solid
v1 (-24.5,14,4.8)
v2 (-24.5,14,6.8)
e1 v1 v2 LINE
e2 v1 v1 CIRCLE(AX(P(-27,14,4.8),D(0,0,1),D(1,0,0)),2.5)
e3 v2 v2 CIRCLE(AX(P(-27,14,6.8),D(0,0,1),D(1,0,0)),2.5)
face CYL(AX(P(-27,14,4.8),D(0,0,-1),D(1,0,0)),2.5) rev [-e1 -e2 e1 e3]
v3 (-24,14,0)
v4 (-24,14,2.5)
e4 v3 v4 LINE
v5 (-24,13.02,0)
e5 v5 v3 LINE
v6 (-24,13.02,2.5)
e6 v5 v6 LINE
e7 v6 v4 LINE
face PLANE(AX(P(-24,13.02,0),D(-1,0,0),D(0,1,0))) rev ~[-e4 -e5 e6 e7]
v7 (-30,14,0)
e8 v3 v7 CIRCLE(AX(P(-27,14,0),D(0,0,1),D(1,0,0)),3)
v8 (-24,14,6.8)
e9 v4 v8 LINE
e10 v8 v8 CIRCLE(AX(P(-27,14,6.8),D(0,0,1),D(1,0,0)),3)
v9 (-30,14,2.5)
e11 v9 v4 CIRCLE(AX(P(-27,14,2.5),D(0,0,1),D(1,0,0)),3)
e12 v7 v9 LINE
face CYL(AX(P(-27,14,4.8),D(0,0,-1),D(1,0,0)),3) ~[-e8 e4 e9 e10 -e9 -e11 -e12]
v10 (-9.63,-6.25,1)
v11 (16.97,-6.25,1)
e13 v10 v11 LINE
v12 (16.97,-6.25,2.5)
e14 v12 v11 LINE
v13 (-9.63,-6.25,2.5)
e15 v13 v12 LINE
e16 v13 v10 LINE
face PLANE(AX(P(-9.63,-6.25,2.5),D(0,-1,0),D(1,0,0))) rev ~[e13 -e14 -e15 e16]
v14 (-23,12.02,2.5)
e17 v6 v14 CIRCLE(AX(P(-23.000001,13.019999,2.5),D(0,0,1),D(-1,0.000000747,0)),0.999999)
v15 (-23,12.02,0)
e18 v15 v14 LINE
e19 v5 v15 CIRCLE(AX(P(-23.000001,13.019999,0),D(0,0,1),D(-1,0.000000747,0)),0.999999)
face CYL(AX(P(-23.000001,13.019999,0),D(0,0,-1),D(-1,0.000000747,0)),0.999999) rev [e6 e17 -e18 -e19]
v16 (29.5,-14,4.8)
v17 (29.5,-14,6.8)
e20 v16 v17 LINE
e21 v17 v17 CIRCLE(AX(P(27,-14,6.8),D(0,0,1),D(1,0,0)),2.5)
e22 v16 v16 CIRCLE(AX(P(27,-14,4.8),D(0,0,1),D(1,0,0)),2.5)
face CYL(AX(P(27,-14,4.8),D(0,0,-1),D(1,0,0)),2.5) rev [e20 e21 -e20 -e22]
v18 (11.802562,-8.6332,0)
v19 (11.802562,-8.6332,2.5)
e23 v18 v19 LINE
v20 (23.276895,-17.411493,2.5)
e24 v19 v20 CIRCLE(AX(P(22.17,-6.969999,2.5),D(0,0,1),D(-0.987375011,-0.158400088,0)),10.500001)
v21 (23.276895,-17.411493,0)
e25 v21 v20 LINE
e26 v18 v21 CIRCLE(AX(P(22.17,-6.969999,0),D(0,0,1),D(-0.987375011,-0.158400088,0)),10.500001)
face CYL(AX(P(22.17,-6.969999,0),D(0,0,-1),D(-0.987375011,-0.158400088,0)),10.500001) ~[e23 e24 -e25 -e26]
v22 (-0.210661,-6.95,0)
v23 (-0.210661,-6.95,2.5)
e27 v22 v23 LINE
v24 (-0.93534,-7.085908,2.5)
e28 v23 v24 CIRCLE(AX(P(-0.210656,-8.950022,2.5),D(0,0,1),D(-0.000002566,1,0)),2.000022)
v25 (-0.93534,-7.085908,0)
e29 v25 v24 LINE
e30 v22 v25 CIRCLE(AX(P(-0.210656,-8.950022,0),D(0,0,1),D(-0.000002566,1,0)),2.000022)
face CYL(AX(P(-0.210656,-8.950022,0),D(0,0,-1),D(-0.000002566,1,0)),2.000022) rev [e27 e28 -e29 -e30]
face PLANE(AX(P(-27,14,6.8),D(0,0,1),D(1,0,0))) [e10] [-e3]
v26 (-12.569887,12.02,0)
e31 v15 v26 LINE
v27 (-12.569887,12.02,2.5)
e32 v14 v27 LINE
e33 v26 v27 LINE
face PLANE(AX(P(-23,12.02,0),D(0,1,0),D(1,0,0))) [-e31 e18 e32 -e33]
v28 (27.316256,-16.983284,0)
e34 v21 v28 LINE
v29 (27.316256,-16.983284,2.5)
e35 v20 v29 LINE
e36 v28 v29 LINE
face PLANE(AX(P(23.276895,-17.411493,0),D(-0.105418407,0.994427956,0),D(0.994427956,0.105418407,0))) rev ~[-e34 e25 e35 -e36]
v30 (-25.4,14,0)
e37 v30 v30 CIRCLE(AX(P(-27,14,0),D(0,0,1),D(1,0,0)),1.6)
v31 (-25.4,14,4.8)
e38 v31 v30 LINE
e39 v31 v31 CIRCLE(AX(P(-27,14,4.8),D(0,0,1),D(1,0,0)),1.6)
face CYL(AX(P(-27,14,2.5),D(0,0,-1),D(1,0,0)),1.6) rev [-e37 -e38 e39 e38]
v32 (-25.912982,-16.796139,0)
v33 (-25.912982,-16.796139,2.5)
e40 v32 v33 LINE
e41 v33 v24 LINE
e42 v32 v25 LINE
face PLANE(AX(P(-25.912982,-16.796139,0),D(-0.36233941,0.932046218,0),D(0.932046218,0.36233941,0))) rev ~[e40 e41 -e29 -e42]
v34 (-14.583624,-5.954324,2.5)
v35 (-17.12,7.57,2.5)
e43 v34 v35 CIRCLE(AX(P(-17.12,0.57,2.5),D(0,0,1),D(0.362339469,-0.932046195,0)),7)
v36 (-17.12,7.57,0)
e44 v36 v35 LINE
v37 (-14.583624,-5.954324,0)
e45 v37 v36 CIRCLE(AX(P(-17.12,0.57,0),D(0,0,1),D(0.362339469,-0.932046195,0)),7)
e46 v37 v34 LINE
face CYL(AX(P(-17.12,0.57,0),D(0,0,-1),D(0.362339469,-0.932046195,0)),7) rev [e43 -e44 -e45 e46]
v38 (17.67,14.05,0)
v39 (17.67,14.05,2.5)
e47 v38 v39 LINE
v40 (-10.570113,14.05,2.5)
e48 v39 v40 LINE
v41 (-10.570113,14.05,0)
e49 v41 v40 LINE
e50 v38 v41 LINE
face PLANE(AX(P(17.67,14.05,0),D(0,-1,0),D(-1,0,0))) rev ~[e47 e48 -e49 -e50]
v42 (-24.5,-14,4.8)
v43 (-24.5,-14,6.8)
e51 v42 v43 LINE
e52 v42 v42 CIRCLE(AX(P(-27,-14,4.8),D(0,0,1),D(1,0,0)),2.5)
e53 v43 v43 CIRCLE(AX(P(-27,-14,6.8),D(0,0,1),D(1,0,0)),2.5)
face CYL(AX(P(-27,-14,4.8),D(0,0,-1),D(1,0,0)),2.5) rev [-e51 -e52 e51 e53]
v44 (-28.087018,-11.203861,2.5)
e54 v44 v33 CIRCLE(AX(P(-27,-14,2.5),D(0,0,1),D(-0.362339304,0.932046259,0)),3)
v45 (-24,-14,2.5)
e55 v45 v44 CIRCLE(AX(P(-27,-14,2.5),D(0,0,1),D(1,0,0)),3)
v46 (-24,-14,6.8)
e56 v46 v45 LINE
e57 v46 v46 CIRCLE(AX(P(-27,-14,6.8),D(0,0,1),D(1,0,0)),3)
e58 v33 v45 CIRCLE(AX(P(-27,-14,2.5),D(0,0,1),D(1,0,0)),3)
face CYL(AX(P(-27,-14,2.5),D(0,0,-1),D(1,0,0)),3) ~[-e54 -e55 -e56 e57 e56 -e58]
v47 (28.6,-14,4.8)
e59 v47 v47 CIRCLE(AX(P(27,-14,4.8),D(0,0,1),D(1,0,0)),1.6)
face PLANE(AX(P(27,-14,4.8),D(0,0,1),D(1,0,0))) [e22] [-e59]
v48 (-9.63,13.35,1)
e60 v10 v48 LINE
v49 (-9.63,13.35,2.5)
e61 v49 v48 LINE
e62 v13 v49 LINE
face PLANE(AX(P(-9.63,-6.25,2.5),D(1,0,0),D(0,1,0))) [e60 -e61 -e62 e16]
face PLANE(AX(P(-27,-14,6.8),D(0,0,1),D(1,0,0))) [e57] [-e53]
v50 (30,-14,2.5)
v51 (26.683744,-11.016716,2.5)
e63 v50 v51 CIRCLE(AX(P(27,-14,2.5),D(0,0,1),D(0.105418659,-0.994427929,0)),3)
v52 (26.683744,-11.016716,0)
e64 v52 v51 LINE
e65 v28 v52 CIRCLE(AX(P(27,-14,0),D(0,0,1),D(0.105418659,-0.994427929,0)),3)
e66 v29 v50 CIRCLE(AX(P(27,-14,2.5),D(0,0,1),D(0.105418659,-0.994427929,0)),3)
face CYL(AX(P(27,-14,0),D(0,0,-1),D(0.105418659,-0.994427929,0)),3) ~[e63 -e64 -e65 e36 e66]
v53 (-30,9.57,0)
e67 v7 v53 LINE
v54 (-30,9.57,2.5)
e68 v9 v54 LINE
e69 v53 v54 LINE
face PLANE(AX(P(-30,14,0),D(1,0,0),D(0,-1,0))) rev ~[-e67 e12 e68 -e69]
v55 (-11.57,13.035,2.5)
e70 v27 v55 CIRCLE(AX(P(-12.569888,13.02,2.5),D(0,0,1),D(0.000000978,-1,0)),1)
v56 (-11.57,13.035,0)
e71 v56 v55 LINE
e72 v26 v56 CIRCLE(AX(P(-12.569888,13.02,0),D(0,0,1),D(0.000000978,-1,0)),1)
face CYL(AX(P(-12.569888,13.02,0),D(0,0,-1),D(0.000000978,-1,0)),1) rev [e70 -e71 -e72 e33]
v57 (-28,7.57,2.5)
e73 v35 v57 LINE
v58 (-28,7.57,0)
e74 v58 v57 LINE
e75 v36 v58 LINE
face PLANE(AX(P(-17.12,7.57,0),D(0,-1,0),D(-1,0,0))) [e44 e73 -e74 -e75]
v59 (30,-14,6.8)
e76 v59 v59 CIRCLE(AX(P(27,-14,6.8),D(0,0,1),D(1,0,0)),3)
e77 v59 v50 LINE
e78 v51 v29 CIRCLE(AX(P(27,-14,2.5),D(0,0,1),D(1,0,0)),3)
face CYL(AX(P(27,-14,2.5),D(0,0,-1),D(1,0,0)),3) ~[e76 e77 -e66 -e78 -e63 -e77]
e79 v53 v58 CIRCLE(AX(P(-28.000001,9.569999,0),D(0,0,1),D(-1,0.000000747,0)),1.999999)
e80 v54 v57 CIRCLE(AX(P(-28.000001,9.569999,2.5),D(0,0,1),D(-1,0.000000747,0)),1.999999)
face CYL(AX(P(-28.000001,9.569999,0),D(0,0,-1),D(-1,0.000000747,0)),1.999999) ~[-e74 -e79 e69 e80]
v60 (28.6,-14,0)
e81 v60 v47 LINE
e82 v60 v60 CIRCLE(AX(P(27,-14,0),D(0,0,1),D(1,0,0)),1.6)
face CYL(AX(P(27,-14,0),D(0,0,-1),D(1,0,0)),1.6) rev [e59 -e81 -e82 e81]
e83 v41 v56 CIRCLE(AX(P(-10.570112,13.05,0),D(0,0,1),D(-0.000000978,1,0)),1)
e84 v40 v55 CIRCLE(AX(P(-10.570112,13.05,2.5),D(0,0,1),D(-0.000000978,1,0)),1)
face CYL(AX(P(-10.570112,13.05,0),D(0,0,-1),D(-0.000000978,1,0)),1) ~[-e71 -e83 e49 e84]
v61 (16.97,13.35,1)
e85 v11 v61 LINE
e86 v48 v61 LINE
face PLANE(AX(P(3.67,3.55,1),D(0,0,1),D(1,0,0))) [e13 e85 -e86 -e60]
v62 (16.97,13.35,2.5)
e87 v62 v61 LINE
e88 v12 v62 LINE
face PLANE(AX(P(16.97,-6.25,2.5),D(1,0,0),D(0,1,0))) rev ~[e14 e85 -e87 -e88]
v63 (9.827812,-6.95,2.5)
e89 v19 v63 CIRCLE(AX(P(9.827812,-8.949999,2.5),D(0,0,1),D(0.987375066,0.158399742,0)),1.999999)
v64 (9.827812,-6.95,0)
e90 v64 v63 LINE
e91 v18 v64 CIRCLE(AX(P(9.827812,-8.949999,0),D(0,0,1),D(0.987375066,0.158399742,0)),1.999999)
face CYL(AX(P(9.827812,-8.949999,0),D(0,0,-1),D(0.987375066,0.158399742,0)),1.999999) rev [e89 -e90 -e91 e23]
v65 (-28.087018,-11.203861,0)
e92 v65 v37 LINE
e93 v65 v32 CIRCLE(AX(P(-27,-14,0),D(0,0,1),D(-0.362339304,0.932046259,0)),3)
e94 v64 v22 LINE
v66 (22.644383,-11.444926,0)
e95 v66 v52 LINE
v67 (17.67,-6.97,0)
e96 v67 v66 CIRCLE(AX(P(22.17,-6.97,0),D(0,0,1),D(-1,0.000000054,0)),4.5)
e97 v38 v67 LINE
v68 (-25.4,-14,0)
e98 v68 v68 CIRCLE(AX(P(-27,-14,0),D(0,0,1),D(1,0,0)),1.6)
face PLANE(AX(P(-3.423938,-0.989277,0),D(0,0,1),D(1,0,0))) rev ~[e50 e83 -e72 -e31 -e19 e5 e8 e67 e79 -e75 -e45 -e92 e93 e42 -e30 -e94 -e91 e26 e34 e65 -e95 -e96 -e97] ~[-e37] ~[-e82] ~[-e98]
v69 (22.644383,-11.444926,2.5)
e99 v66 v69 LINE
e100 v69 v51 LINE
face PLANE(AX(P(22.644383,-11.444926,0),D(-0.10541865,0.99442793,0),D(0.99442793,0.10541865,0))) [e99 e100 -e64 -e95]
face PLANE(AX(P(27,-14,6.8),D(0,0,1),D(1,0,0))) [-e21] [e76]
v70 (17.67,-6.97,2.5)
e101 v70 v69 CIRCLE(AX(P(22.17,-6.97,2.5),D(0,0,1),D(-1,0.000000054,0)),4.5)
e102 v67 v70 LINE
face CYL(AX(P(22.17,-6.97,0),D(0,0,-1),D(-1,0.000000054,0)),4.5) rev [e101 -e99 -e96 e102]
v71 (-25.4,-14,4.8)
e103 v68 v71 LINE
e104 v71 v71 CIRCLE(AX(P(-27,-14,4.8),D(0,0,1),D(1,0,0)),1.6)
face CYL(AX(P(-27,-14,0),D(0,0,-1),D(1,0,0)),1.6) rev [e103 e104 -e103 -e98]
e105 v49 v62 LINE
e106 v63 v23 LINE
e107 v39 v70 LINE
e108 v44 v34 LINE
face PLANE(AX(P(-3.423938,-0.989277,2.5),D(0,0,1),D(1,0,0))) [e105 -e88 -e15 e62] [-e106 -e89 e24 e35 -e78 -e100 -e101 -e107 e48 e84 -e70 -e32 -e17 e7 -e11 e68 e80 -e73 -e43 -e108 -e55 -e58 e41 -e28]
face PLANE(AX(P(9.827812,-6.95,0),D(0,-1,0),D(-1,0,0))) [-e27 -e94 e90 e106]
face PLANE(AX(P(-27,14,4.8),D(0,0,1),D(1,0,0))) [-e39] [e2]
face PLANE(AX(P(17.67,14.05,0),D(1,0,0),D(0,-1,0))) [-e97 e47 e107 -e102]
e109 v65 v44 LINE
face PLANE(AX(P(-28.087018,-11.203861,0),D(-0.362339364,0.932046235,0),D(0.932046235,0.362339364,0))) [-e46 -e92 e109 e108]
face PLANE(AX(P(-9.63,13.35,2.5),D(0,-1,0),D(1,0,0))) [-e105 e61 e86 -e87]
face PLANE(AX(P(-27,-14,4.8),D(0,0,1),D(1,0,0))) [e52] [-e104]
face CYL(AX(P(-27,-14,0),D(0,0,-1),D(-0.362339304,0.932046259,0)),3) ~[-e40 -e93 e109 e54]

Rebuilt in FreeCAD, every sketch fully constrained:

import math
import FreeCAD as App
import Part
import Sketcher

V = App.Vector


def add_polygon(sketch, points):
    """Adds a closed chain of lines whose ends are joined by coincident constraints."""
    first, n = sketch.GeometryCount, len(points)
    for a, b in zip(points, points[1:] + points[:1]):
        sketch.addGeometry(Part.LineSegment(App.Vector(*a, 0), App.Vector(*b, 0)), False)
    for i in range(n):
        sketch.addConstraint(Sketcher.Constraint("Coincident", first + i, 2, first + (i + 1) % n, 1))

doc = App.newDocument("Part")
body = doc.addObject("PartDesign::Body", "Body")

sketch1 = body.newObject("Sketcher::SketchObject", "Sketch")
sketch1.AttachmentSupport = (doc.getObject("XY_Plane"), [""])
sketch1.MapMode = "FlatFace"
sketch1.addGeometry(Part.ArcOfCircle(Part.Circle(V(-27, -14, 0), V(0, 0, 1), 3), math.radians(111), math.radians(291)), False)
sketch1.addGeometry(Part.LineSegment(V(-25.9, -16.8, 0), V(-0.9, -7.1, 0)), False)
sketch1.addGeometry(Part.ArcOfCircle(Part.Circle(V(-0.2, -9, 0), V(0, 0, 1), 2), math.radians(90), math.radians(111)), False)
sketch1.addGeometry(Part.LineSegment(V(-0.2, -7, 0), V(9.8, -7, 0)), False)
sketch1.addGeometry(Part.ArcOfCircle(Part.Circle(V(9.8, -8.9, 0), V(0, 0, 1), 2), math.radians(9), math.radians(90)), False)
sketch1.addGeometry(Part.ArcOfCircle(Part.Circle(V(22.2, -7, 0), V(0, 0, 1), 10.5), math.radians(-171), math.radians(-84)), False)
sketch1.addGeometry(Part.LineSegment(V(23.3, -17.4, 0), V(27.3, -17, 0)), False)
sketch1.addGeometry(Part.ArcOfCircle(Part.Circle(V(27, -14, 0), V(0, 0, 1), 3), math.radians(-84), math.radians(96)), False)
sketch1.addGeometry(Part.LineSegment(V(26.7, -11, 0), V(22.6, -11.4, 0)), False)
sketch1.addGeometry(Part.ArcOfCircle(Part.Circle(V(22.2, -7, 0), V(0, 0, 1), 4.5), math.radians(180), math.radians(276)), False)
sketch1.addGeometry(Part.LineSegment(V(17.7, -7, 0), V(17.7, 14.1, 0)), False)
sketch1.addGeometry(Part.LineSegment(V(17.7, 14.1, 0), V(-10.6, 14.1, 0)), False)
sketch1.addGeometry(Part.ArcOfCircle(Part.Circle(V(-10.6, 13, 0), V(0, 0, 1), 1), math.radians(90), math.radians(181)), False)
sketch1.addGeometry(Part.ArcOfCircle(Part.Circle(V(-12.6, 13, 0), V(0, 0, 1), 1), math.radians(-90), math.radians(1)), False)
sketch1.addGeometry(Part.LineSegment(V(-12.6, 12, 0), V(-23, 12, 0)), False)
sketch1.addGeometry(Part.ArcOfCircle(Part.Circle(V(-23, 13, 0), V(0, 0, 1), 1), math.radians(180), math.radians(270)), False)
sketch1.addGeometry(Part.LineSegment(V(-24, 13, 0), V(-24, 14, 0)), False)
sketch1.addGeometry(Part.ArcOfCircle(Part.Circle(V(-27, 14, 0), V(0, 0, 1), 3), math.radians(0), math.radians(180)), False)
sketch1.addGeometry(Part.LineSegment(V(-30, 14, 0), V(-30, 9.6, 0)), False)
sketch1.addGeometry(Part.ArcOfCircle(Part.Circle(V(-28, 9.6, 0), V(0, 0, 1), 2), math.radians(180), math.radians(270)), False)
sketch1.addGeometry(Part.LineSegment(V(-28, 7.6, 0), V(-17.1, 7.6, 0)), False)
sketch1.addGeometry(Part.ArcOfCircle(Part.Circle(V(-17.1, 0.6, 0), V(0, 0, 1), 7), math.radians(-69), math.radians(90)), False)
sketch1.addGeometry(Part.LineSegment(V(-14.6, -6, 0), V(-28.1, -11.2, 0)), False)
sketch1.addGeometry(Part.Circle(V(-27, -14, 0), V(0, 0, 1), 1.6), False)
sketch1.addGeometry(Part.Circle(V(27, -14, 0), V(0, 0, 1), 1.6), False)
sketch1.addGeometry(Part.Circle(V(-27, 14, 0), V(0, 0, 1), 1.6), False)
sketch1.addConstraint(Sketcher.Constraint("Tangent", 0, 2, 1, 1))
sketch1.addConstraint(Sketcher.Constraint("Tangent", 1, 2, 2, 2))
sketch1.addConstraint(Sketcher.Constraint("Coincident", 2, 1, 3, 1))
sketch1.addConstraint(Sketcher.Constraint("Tangent", 3, 2, 4, 2))
sketch1.addConstraint(Sketcher.Constraint("Tangent", 4, 1, 5, 1))
sketch1.addConstraint(Sketcher.Constraint("Tangent", 5, 2, 6, 1))
sketch1.addConstraint(Sketcher.Constraint("Tangent", 6, 2, 7, 1))
sketch1.addConstraint(Sketcher.Constraint("Tangent", 7, 2, 8, 1))
sketch1.addConstraint(Sketcher.Constraint("Tangent", 8, 2, 9, 2))
sketch1.addConstraint(Sketcher.Constraint("Tangent", 9, 1, 10, 1))
sketch1.addConstraint(Sketcher.Constraint("Coincident", 10, 2, 11, 1))
sketch1.addConstraint(Sketcher.Constraint("Tangent", 11, 2, 12, 1))
sketch1.addConstraint(Sketcher.Constraint("Tangent", 12, 2, 13, 2))
sketch1.addConstraint(Sketcher.Constraint("Tangent", 13, 1, 14, 1))
sketch1.addConstraint(Sketcher.Constraint("Tangent", 14, 2, 15, 2))
sketch1.addConstraint(Sketcher.Constraint("Tangent", 15, 1, 16, 1))
sketch1.addConstraint(Sketcher.Constraint("Tangent", 16, 2, 17, 1))
sketch1.addConstraint(Sketcher.Constraint("Tangent", 17, 2, 18, 1))
sketch1.addConstraint(Sketcher.Constraint("Tangent", 18, 2, 19, 1))
sketch1.addConstraint(Sketcher.Constraint("Tangent", 19, 2, 20, 1))
sketch1.addConstraint(Sketcher.Constraint("Tangent", 20, 2, 21, 2))
sketch1.addConstraint(Sketcher.Constraint("Tangent", 21, 1, 22, 1))
sketch1.addConstraint(Sketcher.Constraint("Tangent", 22, 2, 0, 1))
sketch1.addConstraint(Sketcher.Constraint("Horizontal", 3))
sketch1.addConstraint(Sketcher.Constraint("Vertical", 10))
sketch1.addConstraint(Sketcher.Constraint("Horizontal", 11))
sketch1.addConstraint(Sketcher.Constraint("Horizontal", 14))
sketch1.addConstraint(Sketcher.Constraint("Vertical", 16))
sketch1.addConstraint(Sketcher.Constraint("Vertical", 18))
sketch1.addConstraint(Sketcher.Constraint("Horizontal", 20))
sketch1.addConstraint(Sketcher.Constraint("Coincident", 9, 3, 5, 3))
sketch1.addConstraint(Sketcher.Constraint("Coincident", 23, 3, 0, 3))
sketch1.addConstraint(Sketcher.Constraint("Coincident", 24, 3, 7, 3))
sketch1.addConstraint(Sketcher.Constraint("Coincident", 25, 3, 17, 3))
sketch1.addConstraint(Sketcher.Constraint("Equal", 0, 7))
sketch1.addConstraint(Sketcher.Constraint("Equal", 12, 13))
sketch1.addConstraint(Sketcher.Constraint("Equal", 13, 15))
sketch1.addConstraint(Sketcher.Constraint("Equal", 7, 17))
sketch1.addConstraint(Sketcher.Constraint("Equal", 4, 19))
sketch1.addConstraint(Sketcher.Constraint("Equal", 23, 24))
sketch1.addConstraint(Sketcher.Constraint("Equal", 24, 25))
sketch1.addConstraint(Sketcher.Constraint("Symmetric", 7, 3, 17, 3, -1, 1))
sketch1.addConstraint(Sketcher.Constraint("Symmetric", 0, 3, 7, 3, -2))
sketch1.addConstraint(Sketcher.Constraint("Parallel", 6, 8))
sketch1.addConstraint(Sketcher.Constraint("Parallel", 1, 22))
sketch1.addConstraint(Sketcher.Constraint("Radius", 0, 3.0))
sketch1.addConstraint(Sketcher.Constraint("Radius", 4, 1.999999))
sketch1.addConstraint(Sketcher.Constraint("Radius", 12, 1.0))
sketch1.addConstraint(Sketcher.Constraint("Radius", 21, 7.0))
sketch1.addConstraint(Sketcher.Constraint("Diameter", 23, 3.2))
sketch1.addConstraint(Sketcher.Constraint("Radius", 5, 10.500001))
sketch1.addConstraint(Sketcher.Constraint("DistanceX", 0, 3, -1, 1, 27.0))
sketch1.addConstraint(Sketcher.Constraint("DistanceY", 0, 3, -1, 1, 14.0))
sketch1.addConstraint(Sketcher.Constraint("DistanceY", 4, 3, 12, 3, 21.999999))
sketch1.addConstraint(Sketcher.Constraint("DistanceX", 20, 1, 20, 2, 10.88))
sketch1.addConstraint(Sketcher.Constraint("DistanceY", 10, 1, 10, 2, 21.02))
sketch1.addConstraint(Sketcher.Constraint("DistanceY", 16, 1, 16, 2, 0.98))
sketch1.addConstraint(Sketcher.Constraint("DistanceY", 18, 2, 18, 1, 4.43))
sketch1.addConstraint(Sketcher.Constraint("DistanceY", 4, 3, -1, 1, 8.949999))
sketch1.addConstraint(Sketcher.Constraint("DistanceX", -1, 1, 5, 3, 22.17))
sketch1.addConstraint(Sketcher.Constraint("DistanceX", 12, 2, -1, 1, 11.57))
sketch1.addConstraint(Sketcher.Constraint("Radius", 2, 2.000022))
sketch1.addConstraint(Sketcher.Constraint("DistanceX", 3, 1, 3, 2, 10.038473))
pad1 = body.newObject("PartDesign::Pad", "Pad")
pad1.Profile = sketch1
pad1.Length = 2.5

sketch2 = body.newObject("Sketcher::SketchObject", "Sketch001")
sketch2.AttachmentSupport = (doc.getObject("XY_Plane"), [""])
sketch2.MapMode = "FlatFace"
sketch2.AttachmentOffset = App.Placement(V(0, 0, 2.5), App.Rotation())
sketch2.addGeometry(Part.Circle(V(-27, 14, 0), V(0, 0, 1), 3), False)
sketch2.addGeometry(Part.Circle(V(-27, 14, 0), V(0, 0, 1), 1.6), False)
sketch2.addGeometry(Part.Circle(V(27, -14, 0), V(0, 0, 1), 3), False)
sketch2.addGeometry(Part.Circle(V(27, -14, 0), V(0, 0, 1), 1.6), False)
sketch2.addGeometry(Part.Circle(V(-27, -14, 0), V(0, 0, 1), 3), False)
sketch2.addGeometry(Part.Circle(V(-27, -14, 0), V(0, 0, 1), 1.6), False)
sketch2.addConstraint(Sketcher.Constraint("Coincident", 1, 3, 0, 3))
sketch2.addConstraint(Sketcher.Constraint("Coincident", 3, 3, 2, 3))
sketch2.addConstraint(Sketcher.Constraint("Coincident", 5, 3, 4, 3))
sketch2.addConstraint(Sketcher.Constraint("Equal", 0, 2))
sketch2.addConstraint(Sketcher.Constraint("Equal", 1, 3))
sketch2.addConstraint(Sketcher.Constraint("Equal", 2, 4))
sketch2.addConstraint(Sketcher.Constraint("Equal", 3, 5))
sketch2.addConstraint(Sketcher.Constraint("Symmetric", 0, 3, 2, 3, -1, 1))
sketch2.addConstraint(Sketcher.Constraint("Symmetric", 2, 3, 4, 3, -2))
sketch2.addConstraint(Sketcher.Constraint("Diameter", 0, 6.0))
sketch2.addConstraint(Sketcher.Constraint("Diameter", 1, 3.2))
sketch2.addConstraint(Sketcher.Constraint("DistanceX", 0, 3, -1, 1, 27.0))
sketch2.addConstraint(Sketcher.Constraint("DistanceY", -1, 1, 0, 3, 14.0))
pad2 = body.newObject("PartDesign::Pad", "Pad001")
pad2.Profile = sketch2
pad2.Length = 2.3

sketch3 = body.newObject("Sketcher::SketchObject", "Sketch002")
sketch3.AttachmentSupport = (doc.getObject("XY_Plane"), [""])
sketch3.MapMode = "FlatFace"
sketch3.AttachmentOffset = App.Placement(V(0, 0, 4.8), App.Rotation())
sketch3.addGeometry(Part.Circle(V(-27, 14, 0), V(0, 0, 1), 3), False)
sketch3.addGeometry(Part.Circle(V(-27, 14, 0), V(0, 0, 1), 2.5), False)
sketch3.addGeometry(Part.Circle(V(-27, -14, 0), V(0, 0, 1), 3), False)
sketch3.addGeometry(Part.Circle(V(-27, -14, 0), V(0, 0, 1), 2.5), False)
sketch3.addGeometry(Part.Circle(V(27, -14, 0), V(0, 0, 1), 3), False)
sketch3.addGeometry(Part.Circle(V(27, -14, 0), V(0, 0, 1), 2.5), False)
sketch3.addConstraint(Sketcher.Constraint("Coincident", 1, 3, 0, 3))
sketch3.addConstraint(Sketcher.Constraint("Coincident", 3, 3, 2, 3))
sketch3.addConstraint(Sketcher.Constraint("Coincident", 5, 3, 4, 3))
sketch3.addConstraint(Sketcher.Constraint("Equal", 0, 2))
sketch3.addConstraint(Sketcher.Constraint("Equal", 1, 3))
sketch3.addConstraint(Sketcher.Constraint("Equal", 2, 4))
sketch3.addConstraint(Sketcher.Constraint("Equal", 3, 5))
sketch3.addConstraint(Sketcher.Constraint("Symmetric", 0, 3, 4, 3, -1, 1))
sketch3.addConstraint(Sketcher.Constraint("Symmetric", 2, 3, 4, 3, -2))
sketch3.addConstraint(Sketcher.Constraint("Diameter", 0, 6.0))
sketch3.addConstraint(Sketcher.Constraint("Diameter", 1, 5.0))
sketch3.addConstraint(Sketcher.Constraint("DistanceX", 0, 3, -1, 1, 27.0))
sketch3.addConstraint(Sketcher.Constraint("DistanceY", -1, 1, 0, 3, 14.0))
pad3 = body.newObject("PartDesign::Pad", "Pad002")
pad3.Profile = sketch3
pad3.Length = 2

sketch4 = body.newObject("Sketcher::SketchObject", "Sketch003")
sketch4.AttachmentSupport = (doc.getObject("XY_Plane"), [""])
sketch4.MapMode = "FlatFace"
sketch4.AttachmentOffset = App.Placement(V(0, 0, 2.5), App.Rotation())
add_polygon(sketch4, [(-10, 13), (-10, -6), (17, -6), (17, 13)])
sketch4.addConstraint(Sketcher.Constraint("Vertical", 0))
sketch4.addConstraint(Sketcher.Constraint("Horizontal", 1))
sketch4.addConstraint(Sketcher.Constraint("Vertical", 2))
sketch4.addConstraint(Sketcher.Constraint("Horizontal", 3))
sketch4.addConstraint(Sketcher.Constraint("DistanceX", 1, 1, 1, 2, 26.6))
sketch4.addConstraint(Sketcher.Constraint("DistanceY", 0, 2, 0, 1, 19.6))
sketch4.addConstraint(Sketcher.Constraint("DistanceX", 0, 2, -1, 1, 9.63))
sketch4.addConstraint(Sketcher.Constraint("DistanceY", 0, 2, -1, 1, 6.25))
pocket1 = body.newObject("PartDesign::Pocket", "Pocket")
pocket1.Profile = sketch4
pocket1.Length = 1.5

doc.recompute()
